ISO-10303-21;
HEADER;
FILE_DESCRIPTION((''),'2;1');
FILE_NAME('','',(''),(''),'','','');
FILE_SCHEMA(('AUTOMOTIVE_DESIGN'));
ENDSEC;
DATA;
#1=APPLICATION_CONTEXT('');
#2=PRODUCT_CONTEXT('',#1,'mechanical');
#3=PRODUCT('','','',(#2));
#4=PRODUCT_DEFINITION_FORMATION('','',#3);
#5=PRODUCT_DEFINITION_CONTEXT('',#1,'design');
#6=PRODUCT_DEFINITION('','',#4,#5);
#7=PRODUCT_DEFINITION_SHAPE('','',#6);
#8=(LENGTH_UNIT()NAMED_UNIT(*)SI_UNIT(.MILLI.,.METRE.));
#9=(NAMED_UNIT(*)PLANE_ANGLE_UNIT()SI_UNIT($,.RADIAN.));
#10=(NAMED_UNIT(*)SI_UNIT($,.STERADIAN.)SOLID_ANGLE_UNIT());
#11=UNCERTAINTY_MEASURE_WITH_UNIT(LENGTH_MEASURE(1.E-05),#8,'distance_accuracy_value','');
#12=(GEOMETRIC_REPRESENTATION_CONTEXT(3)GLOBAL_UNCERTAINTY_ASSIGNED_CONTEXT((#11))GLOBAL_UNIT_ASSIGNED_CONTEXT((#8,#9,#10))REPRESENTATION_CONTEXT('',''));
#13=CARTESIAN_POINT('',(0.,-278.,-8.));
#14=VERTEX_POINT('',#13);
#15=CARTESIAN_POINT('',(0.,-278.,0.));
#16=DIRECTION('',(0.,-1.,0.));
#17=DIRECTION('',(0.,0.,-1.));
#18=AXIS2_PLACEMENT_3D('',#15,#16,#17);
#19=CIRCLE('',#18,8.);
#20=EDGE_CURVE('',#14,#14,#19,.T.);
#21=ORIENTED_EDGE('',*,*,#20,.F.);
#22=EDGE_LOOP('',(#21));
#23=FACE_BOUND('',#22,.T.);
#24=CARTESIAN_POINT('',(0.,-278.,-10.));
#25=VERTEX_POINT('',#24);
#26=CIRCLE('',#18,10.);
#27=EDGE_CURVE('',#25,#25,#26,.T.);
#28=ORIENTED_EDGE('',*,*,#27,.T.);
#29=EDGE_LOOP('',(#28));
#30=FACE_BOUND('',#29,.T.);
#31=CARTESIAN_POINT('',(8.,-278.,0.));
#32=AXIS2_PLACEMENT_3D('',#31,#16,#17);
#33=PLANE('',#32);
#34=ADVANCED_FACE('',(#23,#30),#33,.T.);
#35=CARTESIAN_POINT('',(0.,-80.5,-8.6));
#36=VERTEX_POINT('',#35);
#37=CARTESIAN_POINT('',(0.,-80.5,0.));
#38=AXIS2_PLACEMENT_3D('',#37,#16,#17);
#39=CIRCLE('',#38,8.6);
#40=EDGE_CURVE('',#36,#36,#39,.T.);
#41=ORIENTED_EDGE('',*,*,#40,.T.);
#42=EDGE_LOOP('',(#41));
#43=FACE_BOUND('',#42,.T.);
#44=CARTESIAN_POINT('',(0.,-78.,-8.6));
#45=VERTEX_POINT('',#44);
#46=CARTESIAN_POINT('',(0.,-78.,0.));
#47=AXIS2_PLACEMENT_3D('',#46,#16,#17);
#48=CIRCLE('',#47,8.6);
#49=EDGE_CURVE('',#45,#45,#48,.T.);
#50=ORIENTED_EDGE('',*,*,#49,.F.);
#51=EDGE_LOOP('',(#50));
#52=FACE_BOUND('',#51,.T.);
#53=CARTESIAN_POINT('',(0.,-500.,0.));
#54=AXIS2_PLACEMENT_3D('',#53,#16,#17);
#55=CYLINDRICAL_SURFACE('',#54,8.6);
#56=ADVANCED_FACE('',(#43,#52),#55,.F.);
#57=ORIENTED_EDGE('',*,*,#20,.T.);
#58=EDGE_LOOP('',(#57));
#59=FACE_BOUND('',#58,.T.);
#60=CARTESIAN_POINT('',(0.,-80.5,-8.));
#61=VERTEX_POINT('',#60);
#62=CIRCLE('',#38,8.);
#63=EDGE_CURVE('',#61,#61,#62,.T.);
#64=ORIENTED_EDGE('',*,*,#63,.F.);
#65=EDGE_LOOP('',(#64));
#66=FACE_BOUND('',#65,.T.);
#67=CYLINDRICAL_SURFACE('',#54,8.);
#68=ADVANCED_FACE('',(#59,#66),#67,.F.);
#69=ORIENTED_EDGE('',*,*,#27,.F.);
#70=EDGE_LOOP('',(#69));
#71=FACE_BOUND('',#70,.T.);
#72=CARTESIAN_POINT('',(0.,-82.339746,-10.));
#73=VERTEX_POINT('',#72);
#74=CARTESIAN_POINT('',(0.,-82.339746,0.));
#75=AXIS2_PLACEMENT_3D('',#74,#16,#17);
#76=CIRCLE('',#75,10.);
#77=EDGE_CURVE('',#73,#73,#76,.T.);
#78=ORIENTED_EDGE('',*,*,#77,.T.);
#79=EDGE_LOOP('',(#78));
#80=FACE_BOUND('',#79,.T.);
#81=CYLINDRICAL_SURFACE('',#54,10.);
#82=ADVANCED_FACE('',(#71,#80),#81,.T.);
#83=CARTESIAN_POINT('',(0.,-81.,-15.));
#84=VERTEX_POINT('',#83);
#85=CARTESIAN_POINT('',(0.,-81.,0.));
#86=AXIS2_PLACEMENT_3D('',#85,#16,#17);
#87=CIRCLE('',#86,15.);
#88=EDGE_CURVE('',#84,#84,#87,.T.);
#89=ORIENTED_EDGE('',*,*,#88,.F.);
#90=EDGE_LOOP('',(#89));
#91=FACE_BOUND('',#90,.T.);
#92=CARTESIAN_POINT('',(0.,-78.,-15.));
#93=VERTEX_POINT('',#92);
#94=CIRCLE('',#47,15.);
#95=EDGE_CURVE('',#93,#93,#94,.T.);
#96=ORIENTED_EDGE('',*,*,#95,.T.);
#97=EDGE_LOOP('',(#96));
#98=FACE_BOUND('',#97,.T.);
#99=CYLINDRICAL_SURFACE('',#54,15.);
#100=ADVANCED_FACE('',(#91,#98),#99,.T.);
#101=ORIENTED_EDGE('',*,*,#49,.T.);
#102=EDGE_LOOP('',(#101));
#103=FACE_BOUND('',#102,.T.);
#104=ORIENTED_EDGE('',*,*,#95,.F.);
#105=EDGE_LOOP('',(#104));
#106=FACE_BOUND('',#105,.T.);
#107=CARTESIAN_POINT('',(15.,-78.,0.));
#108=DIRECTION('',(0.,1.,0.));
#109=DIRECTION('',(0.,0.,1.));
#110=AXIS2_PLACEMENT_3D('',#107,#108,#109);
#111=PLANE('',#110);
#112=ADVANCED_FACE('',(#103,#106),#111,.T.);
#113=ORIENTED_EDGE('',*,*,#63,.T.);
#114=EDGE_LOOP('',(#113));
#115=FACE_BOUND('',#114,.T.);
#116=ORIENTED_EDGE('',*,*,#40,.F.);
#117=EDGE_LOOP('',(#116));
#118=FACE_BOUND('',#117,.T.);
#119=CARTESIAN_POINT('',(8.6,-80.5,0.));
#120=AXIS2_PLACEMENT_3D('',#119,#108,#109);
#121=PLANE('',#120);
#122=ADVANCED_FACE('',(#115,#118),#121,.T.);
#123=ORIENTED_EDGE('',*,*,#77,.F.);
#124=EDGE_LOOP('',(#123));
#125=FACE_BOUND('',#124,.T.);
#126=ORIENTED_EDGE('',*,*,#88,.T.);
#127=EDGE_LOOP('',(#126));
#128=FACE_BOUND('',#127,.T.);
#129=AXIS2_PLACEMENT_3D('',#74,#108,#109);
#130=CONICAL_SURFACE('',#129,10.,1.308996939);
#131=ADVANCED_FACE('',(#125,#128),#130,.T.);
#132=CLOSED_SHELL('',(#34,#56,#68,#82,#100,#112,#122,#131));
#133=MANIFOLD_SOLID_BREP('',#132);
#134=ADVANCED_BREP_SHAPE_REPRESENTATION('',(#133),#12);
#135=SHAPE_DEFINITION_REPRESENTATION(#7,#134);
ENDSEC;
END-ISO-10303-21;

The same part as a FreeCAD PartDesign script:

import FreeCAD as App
import Part
import Sketcher
from FreeCAD import Vector
Q = App.Units.Quantity

doc = App.newDocument("Part")
params = doc.addObject("Spreadsheet::Sheet", "Params")
for row, (alias, value) in enumerate([
    ("sketch1_width", "2 mm"),
    ("sketch1_height", "3 mm"),
    ("sketch1_width2", "0.6 mm"),
    ("sketch1_width3", "6.4 mm"),
    ("sketch1_height2", "2.5 mm"),
    ("revolution_angle", "360 deg"),
], start=1):
    params.set(f"A{row}", alias)
    params.set(f"B{row}", "=" + value)
    params.setAlias(f"B{row}", alias)

body = doc.addObject("PartDesign::Body", "Body")

# Sketch on XY plane
sketch1 = doc.addObject("Sketcher::SketchObject", "Sketch")
body.addObject(sketch1)
sketch1.AttachmentSupport = (doc.XY_Plane, [""])
sketch1.MapMode = "FlatFace"
sketch1.addGeometry([
    Part.LineSegment(Vector(8.6, -78, 0), Vector(8.6, -80.5, 0)),  # 0
    Part.LineSegment(Vector(8.6, -80.5, 0), Vector(8, -80.5, 0)),  # 1
    Part.LineSegment(Vector(8, -80.5, 0), Vector(8, -278, 0)),  # 2
    Part.LineSegment(Vector(8, -278, 0), Vector(10, -278, 0)),  # 3
    Part.LineSegment(Vector(10, -278, 0), Vector(10, -82.3, 0)),  # 4
    Part.LineSegment(Vector(10, -82.3, 0), Vector(15, -81, 0)),  # 5
    Part.LineSegment(Vector(15, -81, 0), Vector(15, -78, 0)),  # 6
    Part.LineSegment(Vector(15, -78, 0), Vector(8.6, -78, 0)),  # 7
], False)
sketch1.addConstraint([
    Sketcher.Constraint("Coincident", 0, 2, 1, 1),
    Sketcher.Constraint("Coincident", 1, 2, 2, 1),
    Sketcher.Constraint("Coincident", 2, 2, 3, 1),
    Sketcher.Constraint("Coincident", 3, 2, 4, 1),
    Sketcher.Constraint("Coincident", 4, 2, 5, 1),
    Sketcher.Constraint("Coincident", 5, 2, 6, 1),
    Sketcher.Constraint("Coincident", 6, 2, 7, 1),
    Sketcher.Constraint("Coincident", 7, 2, 0, 1),
    Sketcher.Constraint("Vertical", 0),
    Sketcher.Constraint("Horizontal", 1),
    Sketcher.Constraint("Vertical", 2),
    Sketcher.Constraint("Horizontal", 3),
    Sketcher.Constraint("Vertical", 4),
    Sketcher.Constraint("Vertical", 6),
    Sketcher.Constraint("Horizontal", 7),
    Sketcher.Constraint("DistanceX", 3, 1, 3, 2, Q("2 mm")),
    Sketcher.Constraint("DistanceY", 6, 1, 6, 2, Q("3 mm")),
    Sketcher.Constraint("Angle", 5, Q("15 deg")),
    Sketcher.Constraint("DistanceX", 1, 2, 1, 1, Q("0.6 mm")),
    Sketcher.Constraint("DistanceX", 7, 2, 7, 1, Q("6.4 mm")),
    Sketcher.Constraint("DistanceY", 0, 2, 0, 1, Q("2.5 mm")),
    Sketcher.Constraint("DistanceY", 2, 2, 2, 1, Q("197.5 mm")),
    Sketcher.Constraint("DistanceX", -1, 1, 1, 2, Q("8 mm")),
    Sketcher.Constraint("DistanceY", 2, 2, -1, 1, Q("278 mm")),
])
sketch1.setExpression("Constraints[15]", "Params.sketch1_width")
sketch1.setExpression("Constraints[16]", "Params.sketch1_height")
sketch1.setExpression("Constraints[18]", "Params.sketch1_width2")
sketch1.setExpression("Constraints[19]", "Params.sketch1_width3")
sketch1.setExpression("Constraints[20]", "Params.sketch1_height2")
revolution = doc.addObject("PartDesign::Revolution", "Revolution")
body.addObject(revolution)
revolution.Profile = sketch1
revolution.ReferenceAxis = (sketch1, ["V_Axis"])
revolution.setExpression("Angle", "Params.revolution_angle")

doc.recompute()
